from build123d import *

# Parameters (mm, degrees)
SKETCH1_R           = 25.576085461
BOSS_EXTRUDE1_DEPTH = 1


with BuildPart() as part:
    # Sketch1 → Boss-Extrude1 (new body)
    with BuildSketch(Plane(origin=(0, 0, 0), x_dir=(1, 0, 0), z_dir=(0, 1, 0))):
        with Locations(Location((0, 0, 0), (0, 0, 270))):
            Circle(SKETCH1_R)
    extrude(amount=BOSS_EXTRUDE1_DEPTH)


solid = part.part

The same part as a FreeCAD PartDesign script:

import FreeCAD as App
import Part
import Sketcher

V = App.Vector
Q = App.Units.Quantity

doc = App.newDocument("Part")
body = doc.addObject("PartDesign::Body", "Body")

sketch1 = body.newObject("Sketcher::SketchObject", "Sketch")
sketch1.AttachmentSupport = (doc.getObject("XZ_Plane"), [""])
sketch1.MapMode = "FlatFace"
sketch1.addGeometry(Part.Circle(V(0, 0, 0), V(0, 0, 1), 25.576085), False)
sketch1.addConstraint([
    Sketcher.Constraint("Coincident", 0, 3, -1, 1),
    Sketcher.Constraint("Diameter", 0, Q("51.152171 mm")),
])
pad1 = body.newObject("PartDesign::Pad", "Pad")
pad1.Profile = sketch1
pad1.Length = 1
pad1.Reversed = True

doc.recompute()
